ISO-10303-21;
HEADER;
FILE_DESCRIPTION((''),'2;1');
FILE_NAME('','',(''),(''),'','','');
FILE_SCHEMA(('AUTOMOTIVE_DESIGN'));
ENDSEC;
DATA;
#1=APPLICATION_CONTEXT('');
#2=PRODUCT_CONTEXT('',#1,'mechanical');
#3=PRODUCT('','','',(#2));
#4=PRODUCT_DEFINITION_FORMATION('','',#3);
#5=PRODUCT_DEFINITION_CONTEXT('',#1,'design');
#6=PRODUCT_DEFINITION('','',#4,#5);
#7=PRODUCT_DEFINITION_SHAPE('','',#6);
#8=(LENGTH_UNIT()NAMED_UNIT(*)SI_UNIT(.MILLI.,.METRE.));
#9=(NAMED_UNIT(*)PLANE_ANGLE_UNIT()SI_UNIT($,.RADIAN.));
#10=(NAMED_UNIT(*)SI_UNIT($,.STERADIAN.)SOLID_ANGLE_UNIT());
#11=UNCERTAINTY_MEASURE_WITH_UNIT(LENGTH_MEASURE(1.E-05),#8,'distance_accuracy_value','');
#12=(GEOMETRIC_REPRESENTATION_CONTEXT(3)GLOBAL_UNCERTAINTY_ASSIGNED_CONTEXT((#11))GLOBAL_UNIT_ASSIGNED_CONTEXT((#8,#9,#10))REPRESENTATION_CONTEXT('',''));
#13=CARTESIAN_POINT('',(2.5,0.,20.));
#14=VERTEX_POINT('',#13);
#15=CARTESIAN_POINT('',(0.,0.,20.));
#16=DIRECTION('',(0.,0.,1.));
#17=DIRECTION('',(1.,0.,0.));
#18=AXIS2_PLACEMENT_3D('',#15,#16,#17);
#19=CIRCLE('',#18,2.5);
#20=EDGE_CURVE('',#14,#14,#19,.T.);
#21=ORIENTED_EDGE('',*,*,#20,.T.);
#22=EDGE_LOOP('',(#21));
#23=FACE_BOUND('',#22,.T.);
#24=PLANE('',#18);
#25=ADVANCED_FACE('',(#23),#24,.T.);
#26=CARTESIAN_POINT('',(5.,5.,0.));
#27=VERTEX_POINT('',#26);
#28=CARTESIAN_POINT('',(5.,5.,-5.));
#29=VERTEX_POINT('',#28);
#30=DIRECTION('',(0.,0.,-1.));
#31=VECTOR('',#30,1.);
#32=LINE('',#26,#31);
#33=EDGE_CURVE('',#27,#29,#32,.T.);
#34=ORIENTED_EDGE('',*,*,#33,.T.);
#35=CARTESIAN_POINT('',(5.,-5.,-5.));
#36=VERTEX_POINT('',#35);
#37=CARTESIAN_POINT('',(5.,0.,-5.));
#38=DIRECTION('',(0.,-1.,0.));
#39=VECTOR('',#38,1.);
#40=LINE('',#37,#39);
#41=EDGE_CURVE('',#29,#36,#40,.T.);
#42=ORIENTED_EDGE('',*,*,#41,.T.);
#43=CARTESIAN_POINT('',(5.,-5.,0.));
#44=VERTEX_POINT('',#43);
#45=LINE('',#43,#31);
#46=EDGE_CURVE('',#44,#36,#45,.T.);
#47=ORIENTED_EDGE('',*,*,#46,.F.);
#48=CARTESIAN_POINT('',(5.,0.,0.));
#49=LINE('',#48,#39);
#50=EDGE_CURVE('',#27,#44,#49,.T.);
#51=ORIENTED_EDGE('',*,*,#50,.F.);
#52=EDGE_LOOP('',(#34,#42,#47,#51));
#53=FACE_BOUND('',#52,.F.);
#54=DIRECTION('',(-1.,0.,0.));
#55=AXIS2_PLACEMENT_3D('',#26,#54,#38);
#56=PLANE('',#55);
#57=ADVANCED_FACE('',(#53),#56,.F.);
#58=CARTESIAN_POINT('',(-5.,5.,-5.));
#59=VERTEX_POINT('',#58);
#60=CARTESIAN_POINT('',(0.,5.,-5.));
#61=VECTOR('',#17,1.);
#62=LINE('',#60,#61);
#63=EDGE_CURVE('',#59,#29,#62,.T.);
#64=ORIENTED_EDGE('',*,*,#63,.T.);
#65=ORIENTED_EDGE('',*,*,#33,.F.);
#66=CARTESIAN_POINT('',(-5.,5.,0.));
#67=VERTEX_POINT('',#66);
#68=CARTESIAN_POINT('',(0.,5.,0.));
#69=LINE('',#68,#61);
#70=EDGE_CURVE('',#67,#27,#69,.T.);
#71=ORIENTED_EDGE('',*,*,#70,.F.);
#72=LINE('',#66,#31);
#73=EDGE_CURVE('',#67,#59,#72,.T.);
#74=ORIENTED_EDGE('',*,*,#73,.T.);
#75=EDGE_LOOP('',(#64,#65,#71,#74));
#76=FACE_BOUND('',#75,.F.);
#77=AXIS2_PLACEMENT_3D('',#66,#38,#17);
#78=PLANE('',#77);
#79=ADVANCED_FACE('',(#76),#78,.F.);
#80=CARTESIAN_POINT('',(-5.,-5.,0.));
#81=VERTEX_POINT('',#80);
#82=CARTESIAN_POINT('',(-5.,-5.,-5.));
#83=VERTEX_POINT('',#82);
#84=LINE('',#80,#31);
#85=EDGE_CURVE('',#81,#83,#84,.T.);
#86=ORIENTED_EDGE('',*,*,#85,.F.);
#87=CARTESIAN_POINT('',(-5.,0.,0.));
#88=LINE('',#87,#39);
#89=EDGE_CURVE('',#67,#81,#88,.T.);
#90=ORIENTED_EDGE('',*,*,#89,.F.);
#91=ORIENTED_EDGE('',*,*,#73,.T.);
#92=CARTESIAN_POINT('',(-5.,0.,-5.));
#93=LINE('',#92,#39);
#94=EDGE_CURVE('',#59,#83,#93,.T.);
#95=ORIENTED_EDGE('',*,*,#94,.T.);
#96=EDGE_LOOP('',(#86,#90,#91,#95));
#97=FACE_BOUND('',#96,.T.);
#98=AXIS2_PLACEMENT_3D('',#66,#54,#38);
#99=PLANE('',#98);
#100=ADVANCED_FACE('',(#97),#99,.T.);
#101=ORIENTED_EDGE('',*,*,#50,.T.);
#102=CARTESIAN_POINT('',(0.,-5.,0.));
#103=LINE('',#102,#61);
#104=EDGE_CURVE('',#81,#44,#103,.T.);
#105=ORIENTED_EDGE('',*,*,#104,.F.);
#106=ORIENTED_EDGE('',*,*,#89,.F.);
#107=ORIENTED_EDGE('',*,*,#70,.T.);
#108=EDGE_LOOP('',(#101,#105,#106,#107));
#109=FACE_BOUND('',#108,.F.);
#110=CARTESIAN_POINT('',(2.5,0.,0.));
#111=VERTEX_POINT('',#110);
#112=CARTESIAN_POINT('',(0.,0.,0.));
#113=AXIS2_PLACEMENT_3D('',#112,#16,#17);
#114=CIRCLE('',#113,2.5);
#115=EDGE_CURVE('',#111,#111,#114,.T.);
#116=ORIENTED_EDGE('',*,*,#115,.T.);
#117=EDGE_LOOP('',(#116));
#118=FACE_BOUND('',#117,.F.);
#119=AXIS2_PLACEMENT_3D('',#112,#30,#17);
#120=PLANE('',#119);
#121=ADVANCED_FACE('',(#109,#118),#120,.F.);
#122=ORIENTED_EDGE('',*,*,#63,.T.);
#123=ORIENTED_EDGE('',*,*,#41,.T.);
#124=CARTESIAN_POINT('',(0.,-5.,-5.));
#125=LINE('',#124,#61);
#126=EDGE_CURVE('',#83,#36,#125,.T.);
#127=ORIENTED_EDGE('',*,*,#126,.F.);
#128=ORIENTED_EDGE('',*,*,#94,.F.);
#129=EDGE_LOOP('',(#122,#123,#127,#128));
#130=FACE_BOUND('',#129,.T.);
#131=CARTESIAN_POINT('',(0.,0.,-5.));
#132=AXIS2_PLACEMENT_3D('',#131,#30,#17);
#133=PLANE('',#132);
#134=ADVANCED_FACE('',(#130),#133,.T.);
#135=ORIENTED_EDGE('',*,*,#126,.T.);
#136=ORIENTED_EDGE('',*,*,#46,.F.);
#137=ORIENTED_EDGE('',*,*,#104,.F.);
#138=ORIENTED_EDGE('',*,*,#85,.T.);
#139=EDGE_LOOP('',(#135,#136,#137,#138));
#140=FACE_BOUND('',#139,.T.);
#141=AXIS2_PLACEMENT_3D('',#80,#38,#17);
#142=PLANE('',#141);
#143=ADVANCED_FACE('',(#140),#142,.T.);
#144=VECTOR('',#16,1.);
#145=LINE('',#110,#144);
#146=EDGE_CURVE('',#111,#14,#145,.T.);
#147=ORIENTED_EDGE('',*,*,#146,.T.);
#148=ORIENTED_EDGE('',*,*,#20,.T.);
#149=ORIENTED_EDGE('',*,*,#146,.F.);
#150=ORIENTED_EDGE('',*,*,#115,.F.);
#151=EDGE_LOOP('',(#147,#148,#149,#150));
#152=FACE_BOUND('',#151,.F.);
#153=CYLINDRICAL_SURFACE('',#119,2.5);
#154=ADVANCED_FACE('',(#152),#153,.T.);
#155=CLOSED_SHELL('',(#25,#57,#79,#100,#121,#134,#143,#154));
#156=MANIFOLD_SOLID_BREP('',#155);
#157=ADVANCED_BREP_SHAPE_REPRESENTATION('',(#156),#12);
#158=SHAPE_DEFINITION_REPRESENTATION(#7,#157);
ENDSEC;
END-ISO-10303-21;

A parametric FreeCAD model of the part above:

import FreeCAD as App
import Part
import Sketcher

V = App.Vector
Q = App.Units.Quantity


def add_polygon(sketch, points):
    """Adds a closed chain of lines whose ends are joined by coincident constraints."""
    first, n = sketch.GeometryCount, len(points)
    for a, b in zip(points, points[1:] + points[:1]):
        sketch.addGeometry(Part.LineSegment(App.Vector(*a, 0), App.Vector(*b, 0)), False)
    for i in range(n):
        sketch.addConstraint(Sketcher.Constraint("Coincident", first + i, 2, first + (i + 1) % n, 1))

doc = App.newDocument("Part")
params = doc.addObject("Spreadsheet::Sheet", "Params")
for row, (alias, value) in enumerate([
    ("sketch1_diameter", "5 mm"),
    ("pad1_length", "20 mm"),
    ("sketch2_width", "10 mm"),
    ("pad2_length", "5 mm"),
], start=1):
    params.set(f"A{row}", alias)
    params.set(f"B{row}", "=" + value)
    params.setAlias(f"B{row}", alias)

body = doc.addObject("PartDesign::Body", "Body")

# Sketch on XY plane
sketch1 = body.newObject("Sketcher::SketchObject", "Sketch")
sketch1.AttachmentSupport = (doc.getObject("XY_Plane"), [""])
sketch1.MapMode = "FlatFace"
sketch1.addGeometry(Part.Circle(V(0, 0, 0), V(0, 0, 1), 2.5), False)
sketch1.addConstraint([
    Sketcher.Constraint("Coincident", 0, 3, -1, 1),
    Sketcher.Constraint("Diameter", 0, Q("5 mm")),
])
sketch1.setExpression("Constraints[1]", "Params.sketch1_diameter")
pad1 = body.newObject("PartDesign::Pad", "Pad")
pad1.Profile = sketch1
pad1.setExpression("Length", "Params.pad1_length")

# Sketch on XY plane
sketch2 = body.newObject("Sketcher::SketchObject", "Sketch001")
sketch2.AttachmentSupport = (doc.getObject("XY_Plane"), [""])
sketch2.MapMode = "FlatFace"
add_polygon(sketch2, [(-5, -5), (-5, 5), (5, 5), (5, -5)])  # lines 0-3
sketch2.addConstraint([
    Sketcher.Constraint("Vertical", 0),
    Sketcher.Constraint("Horizontal", 1),
    Sketcher.Constraint("Vertical", 2),
    Sketcher.Constraint("Horizontal", 3),
    Sketcher.Constraint("Symmetric", 0, 2, 2, 2, -1, 1),
    Sketcher.Constraint("Equal", 3, 0),
    Sketcher.Constraint("DistanceX", 1, 1, 1, 2, Q("10 mm")),
])
sketch2.setExpression("Constraints[10]", "Params.sketch2_width")
pad2 = body.newObject("PartDesign::Pad", "Pad001")
pad2.Profile = sketch2
pad2.setExpression("Length", "Params.pad2_length")
pad2.Reversed = True

doc.recompute()
